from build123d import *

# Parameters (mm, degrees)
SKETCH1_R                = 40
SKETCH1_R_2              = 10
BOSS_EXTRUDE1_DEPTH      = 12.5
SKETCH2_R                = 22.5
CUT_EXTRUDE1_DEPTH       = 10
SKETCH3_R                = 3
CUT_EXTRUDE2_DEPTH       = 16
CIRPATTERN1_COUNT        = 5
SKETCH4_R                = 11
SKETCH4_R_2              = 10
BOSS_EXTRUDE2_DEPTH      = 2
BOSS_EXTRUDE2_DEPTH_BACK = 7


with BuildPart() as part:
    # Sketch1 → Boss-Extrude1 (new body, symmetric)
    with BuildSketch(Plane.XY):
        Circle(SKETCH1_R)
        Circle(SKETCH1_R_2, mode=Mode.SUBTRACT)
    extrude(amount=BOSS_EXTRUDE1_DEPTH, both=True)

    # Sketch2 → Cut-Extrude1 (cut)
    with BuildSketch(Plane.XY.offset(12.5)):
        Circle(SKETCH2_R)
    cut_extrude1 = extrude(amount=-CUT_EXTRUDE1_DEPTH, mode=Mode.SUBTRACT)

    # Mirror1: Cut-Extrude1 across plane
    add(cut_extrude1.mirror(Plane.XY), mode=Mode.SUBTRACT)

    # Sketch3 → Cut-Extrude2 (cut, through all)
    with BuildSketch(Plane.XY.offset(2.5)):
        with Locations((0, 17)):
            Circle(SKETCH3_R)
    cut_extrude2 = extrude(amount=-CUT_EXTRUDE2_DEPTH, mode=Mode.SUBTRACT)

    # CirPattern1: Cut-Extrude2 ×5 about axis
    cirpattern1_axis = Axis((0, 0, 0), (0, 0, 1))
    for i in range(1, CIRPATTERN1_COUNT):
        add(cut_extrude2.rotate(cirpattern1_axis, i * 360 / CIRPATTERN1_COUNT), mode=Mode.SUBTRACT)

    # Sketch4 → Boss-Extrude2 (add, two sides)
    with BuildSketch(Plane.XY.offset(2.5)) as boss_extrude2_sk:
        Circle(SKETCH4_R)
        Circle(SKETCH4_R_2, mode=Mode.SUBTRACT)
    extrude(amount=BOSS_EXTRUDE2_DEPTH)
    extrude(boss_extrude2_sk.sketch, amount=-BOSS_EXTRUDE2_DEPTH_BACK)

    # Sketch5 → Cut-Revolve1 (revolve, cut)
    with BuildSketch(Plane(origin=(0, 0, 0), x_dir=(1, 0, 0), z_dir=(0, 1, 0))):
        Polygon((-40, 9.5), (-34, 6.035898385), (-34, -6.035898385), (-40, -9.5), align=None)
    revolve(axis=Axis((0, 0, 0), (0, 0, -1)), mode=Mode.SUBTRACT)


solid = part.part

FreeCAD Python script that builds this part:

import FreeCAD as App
import Part
import Sketcher
Q = App.Units.Quantity

doc = App.newDocument("Part")
body = doc.addObject("PartDesign::Body", "Body")

sketch1 = body.newObject("Sketcher::SketchObject", "Sketch")
sketch1.AttachmentSupport = (doc.getObject("XY_Plane"), [""])
sketch1.MapMode = "FlatFace"
sketch1.addGeometry(Part.Circle(App.Vector(0, 0, 0), App.Vector(0, 0, 1), 40), False)
sketch1.addGeometry(Part.Circle(App.Vector(0, 0, 0), App.Vector(0, 0, 1), 10), False)
sketch1.addConstraint(Sketcher.Constraint("Coincident", 0, 3, -1, 1))
sketch1.addConstraint(Sketcher.Constraint("Coincident", 1, 3, -1, 1))
sketch1.addConstraint(Sketcher.Constraint("Diameter", 0, 80.0))
sketch1.addConstraint(Sketcher.Constraint("Diameter", 1, 20.0))
pad1 = body.newObject("PartDesign::Pad", "Pad")
pad1.Profile = sketch1
pad1.Length = 25
pad1.Midplane = True

sketch2 = body.newObject("Sketcher::SketchObject", "Sketch001")
sketch2.AttachmentSupport = (doc.getObject("XY_Plane"), [""])
sketch2.MapMode = "FlatFace"
sketch2.AttachmentOffset = App.Placement(App.Vector(0, 0, 12.5), App.Rotation())
sketch2.addGeometry(Part.Circle(App.Vector(0, 0, 0), App.Vector(0, 0, 1), 22), False)
sketch2.addConstraint(Sketcher.Constraint("Coincident", 0, 3, -1, 1))
sketch2.addConstraint(Sketcher.Constraint("Diameter", 0, 45.0))
pocket1 = body.newObject("PartDesign::Pocket", "Pocket")
pocket1.Profile = sketch2
pocket1.Length = 10
doc.recompute()

mirrored = body.newObject("PartDesign::Mirrored", "Mirrored")
mirrored.Originals = [pocket1]
mirrored.MirrorPlane = (doc.getObject("XY_Plane"), [""])
body.Tip = mirrored

sketch3 = body.newObject("Sketcher::SketchObject", "Sketch002")
sketch3.AttachmentSupport = (doc.getObject("XY_Plane"), [""])
sketch3.MapMode = "FlatFace"
sketch3.AttachmentOffset = App.Placement(App.Vector(0, 0, 2.5), App.Rotation())
sketch3.addGeometry(Part.Circle(App.Vector(0, 17, 0), App.Vector(0, 0, 1), 3), False)
sketch3.addConstraint(Sketcher.Constraint("PointOnObject", 0, 3, -2))
sketch3.addConstraint(Sketcher.Constraint("Diameter", 0, 6.0))
sketch3.addConstraint(Sketcher.Constraint("DistanceY", -1, 1, 0, 3, 17.0))
pocket2 = body.newObject("PartDesign::Pocket", "Pocket001")
pocket2.Profile = sketch3
pocket2.Type = "ThroughAll"
doc.recompute()

polarpattern = body.newObject("PartDesign::PolarPattern", "PolarPattern")
polarpattern.Originals = [pocket2]
polarpattern.Axis = (doc.getObject("Z_Axis"), [""])
polarpattern.Angle = 360
polarpattern.Occurrences = 5
body.Tip = polarpattern

sketch4 = body.newObject("Sketcher::SketchObject", "Sketch003")
sketch4.AttachmentSupport = (doc.getObject("XY_Plane"), [""])
sketch4.MapMode = "FlatFace"
sketch4.AttachmentOffset = App.Placement(App.Vector(0, 0, 2.5), App.Rotation())
sketch4.addGeometry(Part.Circle(App.Vector(0, 0, 0), App.Vector(0, 0, 1), 11), False)
sketch4.addGeometry(Part.Circle(App.Vector(0, 0, 0), App.Vector(0, 0, 1), 10), False)
sketch4.addConstraint(Sketcher.Constraint("Coincident", 0, 3, -1, 1))
sketch4.addConstraint(Sketcher.Constraint("Coincident", 1, 3, -1, 1))
sketch4.addConstraint(Sketcher.Constraint("Diameter", 0, 22.0))
sketch4.addConstraint(Sketcher.Constraint("Diameter", 1, 20.0))
pad2 = body.newObject("PartDesign::Pad", "Pad001")
pad2.Profile = sketch4
pad2.Type = "TwoLengths"
pad2.Length = 2
pad2.Length2 = 7

sketch5 = body.newObject("Sketcher::SketchObject", "Sketch004")
sketch5.AttachmentSupport = (doc.getObject("XZ_Plane"), [""])
sketch5.MapMode = "FlatFace"
sketch5.addGeometry(Part.LineSegment(App.Vector(-34, -6, 0), App.Vector(-40, -10, 0)), False)
sketch5.addGeometry(Part.LineSegment(App.Vector(-40, -10, 0), App.Vector(-40, 10, 0)), False)
sketch5.addGeometry(Part.LineSegment(App.Vector(-40, 10, 0), App.Vector(-34, 6, 0)), False)
sketch5.addGeometry(Part.LineSegment(App.Vector(-34, 6, 0), App.Vector(-34, -6, 0)), False)
sketch5.addConstraint(Sketcher.Constraint("Coincident", 0, 2, 1, 1))
sketch5.addConstraint(Sketcher.Constraint("Coincident", 1, 2, 2, 1))
sketch5.addConstraint(Sketcher.Constraint("Coincident", 2, 2, 3, 1))
sketch5.addConstraint(Sketcher.Constraint("Coincident", 3, 2, 0, 1))
sketch5.addConstraint(Sketcher.Constraint("Vertical", 1))
sketch5.addConstraint(Sketcher.Constraint("Vertical", 3))
sketch5.addConstraint(Sketcher.Constraint("Equal", 0, 2))
sketch5.addConstraint(Sketcher.Constraint("DistanceY", 1, 1, 1, 2, 19.0))
sketch5.addConstraint(Sketcher.Constraint("Angle", 0, Q("-150 deg")))
sketch5.addConstraint(Sketcher.Constraint("DistanceX", 0, 2, -1, 1, 40.0))
sketch5.addConstraint(Sketcher.Constraint("DistanceX", 2, 2, -1, 1, 34.0))
sketch5.addConstraint(Sketcher.Constraint("DistanceY", 0, 2, -1, 1, 9.5))
groove = body.newObject("PartDesign::Groove", "Groove")
groove.Profile = sketch5
groove.ReferenceAxis = (sketch5, ["V_Axis"])
groove.Angle = 360

doc.recompute()
